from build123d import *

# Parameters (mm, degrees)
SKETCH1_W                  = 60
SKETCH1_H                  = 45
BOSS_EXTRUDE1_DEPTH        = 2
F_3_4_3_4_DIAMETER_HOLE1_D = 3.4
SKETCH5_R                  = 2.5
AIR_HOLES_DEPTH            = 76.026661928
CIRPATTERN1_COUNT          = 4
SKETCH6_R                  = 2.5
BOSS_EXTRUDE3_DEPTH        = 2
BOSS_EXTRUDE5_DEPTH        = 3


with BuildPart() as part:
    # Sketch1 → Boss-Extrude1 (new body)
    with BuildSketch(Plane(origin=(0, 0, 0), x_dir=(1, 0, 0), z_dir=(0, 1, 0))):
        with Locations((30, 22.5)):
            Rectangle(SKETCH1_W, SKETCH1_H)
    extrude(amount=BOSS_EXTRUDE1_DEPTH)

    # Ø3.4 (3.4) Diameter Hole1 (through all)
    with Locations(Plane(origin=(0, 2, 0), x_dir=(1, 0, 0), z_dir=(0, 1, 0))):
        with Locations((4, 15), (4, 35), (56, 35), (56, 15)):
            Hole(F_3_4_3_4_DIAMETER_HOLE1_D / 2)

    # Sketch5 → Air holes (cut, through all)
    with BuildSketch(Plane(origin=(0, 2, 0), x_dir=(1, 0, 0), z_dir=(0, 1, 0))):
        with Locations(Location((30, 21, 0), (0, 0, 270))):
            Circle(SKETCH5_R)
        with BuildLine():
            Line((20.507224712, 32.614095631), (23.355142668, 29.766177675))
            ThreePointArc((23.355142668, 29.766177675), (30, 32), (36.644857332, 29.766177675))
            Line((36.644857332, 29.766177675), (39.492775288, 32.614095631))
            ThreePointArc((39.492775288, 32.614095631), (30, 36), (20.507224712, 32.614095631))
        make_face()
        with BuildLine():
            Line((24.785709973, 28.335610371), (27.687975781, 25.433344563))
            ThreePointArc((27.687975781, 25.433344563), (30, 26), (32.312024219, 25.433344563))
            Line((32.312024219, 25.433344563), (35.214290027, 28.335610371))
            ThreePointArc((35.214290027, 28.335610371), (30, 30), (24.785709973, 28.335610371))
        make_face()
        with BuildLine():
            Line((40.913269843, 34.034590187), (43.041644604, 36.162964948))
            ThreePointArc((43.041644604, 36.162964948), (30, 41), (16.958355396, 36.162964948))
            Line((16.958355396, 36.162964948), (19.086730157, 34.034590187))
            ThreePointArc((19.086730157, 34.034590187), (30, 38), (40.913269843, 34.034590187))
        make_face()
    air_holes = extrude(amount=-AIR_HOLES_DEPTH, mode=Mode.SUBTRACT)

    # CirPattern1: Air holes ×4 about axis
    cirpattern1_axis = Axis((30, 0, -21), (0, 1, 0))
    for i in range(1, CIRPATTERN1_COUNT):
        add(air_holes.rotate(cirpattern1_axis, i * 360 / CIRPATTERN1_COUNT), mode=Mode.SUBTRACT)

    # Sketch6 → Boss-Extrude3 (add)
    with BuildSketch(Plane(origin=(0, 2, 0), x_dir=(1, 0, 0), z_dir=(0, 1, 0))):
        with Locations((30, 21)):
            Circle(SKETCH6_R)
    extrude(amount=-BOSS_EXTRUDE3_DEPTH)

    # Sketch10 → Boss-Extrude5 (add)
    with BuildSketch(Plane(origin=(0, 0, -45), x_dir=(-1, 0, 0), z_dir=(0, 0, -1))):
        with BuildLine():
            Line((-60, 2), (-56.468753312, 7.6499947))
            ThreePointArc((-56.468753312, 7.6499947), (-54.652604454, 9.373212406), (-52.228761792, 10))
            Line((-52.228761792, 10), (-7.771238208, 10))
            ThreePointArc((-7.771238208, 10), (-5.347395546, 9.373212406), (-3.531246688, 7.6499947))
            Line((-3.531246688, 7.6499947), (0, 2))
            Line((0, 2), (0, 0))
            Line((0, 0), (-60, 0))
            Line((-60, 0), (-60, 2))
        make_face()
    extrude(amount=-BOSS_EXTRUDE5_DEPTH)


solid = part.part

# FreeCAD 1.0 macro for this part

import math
import FreeCAD as App
import Part
import Sketcher
from FreeCAD import Vector
Q = App.Units.Quantity

doc = App.newDocument("Part")
body = doc.addObject("PartDesign::Body", "Body")

sketch1 = doc.addObject("Sketcher::SketchObject", "Sketch")
body.addObject(sketch1)
sketch1.AttachmentSupport = (doc.XZ_Plane, [""])
sketch1.MapMode = "FlatFace"
sketch1.addGeometry([
    Part.LineSegment(Vector(0, -45, 0), Vector(0, 0, 0)),
    Part.LineSegment(Vector(0, 0, 0), Vector(60, 0, 0)),
    Part.LineSegment(Vector(60, 0, 0), Vector(60, -45, 0)),
    Part.LineSegment(Vector(60, -45, 0), Vector(0, -45, 0)),
], False)
sketch1.addConstraint([
    Sketcher.Constraint("Coincident", 0, 2, 1, 1),
    Sketcher.Constraint("Coincident", 1, 2, 2, 1),
    Sketcher.Constraint("Coincident", 2, 2, 3, 1),
    Sketcher.Constraint("Coincident", 3, 2, 0, 1),
    Sketcher.Constraint("Vertical", 0),
    Sketcher.Constraint("Horizontal", 1),
    Sketcher.Constraint("Vertical", 2),
    Sketcher.Constraint("Horizontal", 3),
    Sketcher.Constraint("Coincident", 0, 2, -1, 1),
    Sketcher.Constraint("DistanceX", 1, 1, 1, 2, Q("60 mm")),
    Sketcher.Constraint("DistanceY", 0, 1, 0, 2, Q("45 mm")),
])
pad1 = doc.addObject("PartDesign::Pad", "Pad")
body.addObject(pad1)
pad1.Profile = sketch1
pad1.Length = 2
pad1.Reversed = True

sketch2 = doc.addObject("Sketcher::SketchObject", "Sketch001")
body.addObject(sketch2)
sketch2.AttachmentSupport = (doc.XZ_Plane, [""])
sketch2.MapMode = "FlatFace"
sketch2.AttachmentOffset = App.Placement(Vector(0, 0, -2), App.Rotation())
sketch2.addGeometry([
    Part.Circle(Vector(4, -15, 0), Vector(0, 0, 1), 1.7),
    Part.Circle(Vector(4, -35, 0), Vector(0, 0, 1), 1.7),
    Part.Circle(Vector(56, -35, 0), Vector(0, 0, 1), 1.7),
    Part.Circle(Vector(56, -15, 0), Vector(0, 0, 1), 1.7),
], False)
sketch2.addConstraint([
    Sketcher.Constraint("Equal", 0, 1),
    Sketcher.Constraint("Equal", 1, 2),
    Sketcher.Constraint("Equal", 2, 3),
    Sketcher.Constraint("Horizontal", 1, 3, 2, 3),
    Sketcher.Constraint("Horizontal", 0, 3, 3, 3),
    Sketcher.Constraint("Vertical", 0, 3, 1, 3),
    Sketcher.Constraint("Vertical", 2, 3, 3, 3),
    Sketcher.Constraint("Diameter", 0, Q("3.4 mm")),
    Sketcher.Constraint("DistanceX", -1, 1, 0, 3, Q("4 mm")),
    Sketcher.Constraint("DistanceY", 0, 3, -1, 1, Q("15 mm")),
    Sketcher.Constraint("DistanceY", 1, 3, -1, 1, Q("35 mm")),
    Sketcher.Constraint("DistanceX", -1, 1, 2, 3, Q("56 mm")),
])
doc.recompute()
hole = doc.addObject("PartDesign::Hole", "Hole")
body.addObject(hole)
hole.Profile = sketch2
hole.ThreadType = "None"
hole.Diameter = 3.4
hole.DepthType = "ThroughAll"
hole.Reversed = True

sketch3 = doc.addObject("Sketcher::SketchObject", "Sketch002")
body.addObject(sketch3)
sketch3.AttachmentSupport = (doc.XZ_Plane, [""])
sketch3.MapMode = "FlatFace"
sketch3.AttachmentOffset = App.Placement(Vector(0, 0, -2), App.Rotation())
sketch3.addGeometry([
    Part.Circle(Vector(30, -21, 0), Vector(0, 0, 1), 2.5),
    Part.LineSegment(Vector(20.5, -32.6, 0), Vector(23.4, -29.8, 0)),
    Part.ArcOfCircle(Part.Circle(Vector(30, -21, 0), Vector(0, 0, 1), 11), math.radians(-127), math.radians(-53)),
    Part.LineSegment(Vector(36.6, -29.8, 0), Vector(39.5, -32.6, 0)),
    Part.ArcOfCircle(Part.Circle(Vector(30, -21, 0), Vector(0, 0, 1), 15), math.radians(-129), math.radians(-51)),
    Part.LineSegment(Vector(24.8, -28.3, 0), Vector(27.7, -25.4, 0)),
    Part.ArcOfCircle(Part.Circle(Vector(30, -21, 0), Vector(0, 0, 1), 5), math.radians(-118), math.radians(-62)),
    Part.LineSegment(Vector(32.3, -25.4, 0), Vector(35.2, -28.3, 0)),
    Part.ArcOfCircle(Part.Circle(Vector(30, -21, 0), Vector(0, 0, 1), 9), math.radians(-125), math.radians(-55)),
    Part.LineSegment(Vector(40.9, -34, 0), Vector(43, -36.2, 0)),
    Part.ArcOfCircle(Part.Circle(Vector(30, -21, 0), Vector(0, 0, 1), 20), math.radians(-131), math.radians(-49)),
    Part.LineSegment(Vector(17, -36.2, 0), Vector(19.1, -34, 0)),
    Part.ArcOfCircle(Part.Circle(Vector(30, -21, 0), Vector(0, 0, 1), 17), math.radians(-130), math.radians(-50)),
], False)
sketch3.addConstraint([
    Sketcher.Constraint("Coincident", 1, 2, 2, 1),
    Sketcher.Constraint("Coincident", 2, 2, 3, 1),
    Sketcher.Constraint("Coincident", 3, 2, 4, 2),
    Sketcher.Constraint("Coincident", 4, 1, 1, 1),
    Sketcher.Constraint("Coincident", 5, 2, 6, 1),
    Sketcher.Constraint("Coincident", 6, 2, 7, 1),
    Sketcher.Constraint("Coincident", 7, 2, 8, 2),
    Sketcher.Constraint("Coincident", 8, 1, 5, 1),
    Sketcher.Constraint("Coincident", 9, 2, 10, 2),
    Sketcher.Constraint("Coincident", 10, 1, 11, 1),
    Sketcher.Constraint("Coincident", 11, 2, 12, 1),
    Sketcher.Constraint("Coincident", 12, 2, 9, 1),
    Sketcher.Constraint("Coincident", 2, 3, 0, 3),
    Sketcher.Constraint("Coincident", 4, 3, 0, 3),
    Sketcher.Constraint("Coincident", 6, 3, 0, 3),
    Sketcher.Constraint("Coincident", 8, 3, 0, 3),
    Sketcher.Constraint("Coincident", 10, 3, 0, 3),
    Sketcher.Constraint("Coincident", 12, 3, 0, 3),
    Sketcher.Constraint("Perpendicular", 1, 3),
    Sketcher.Constraint("Perpendicular", 3, 5),
    Sketcher.Constraint("Perpendicular", 5, 7),
    Sketcher.Constraint("Parallel", 7, 9),
    Sketcher.Constraint("Perpendicular", 9, 11),
    Sketcher.Constraint("Horizontal", 1, 2, 2, 2),
    Sketcher.Constraint("Horizontal", 3, 2, 4, 1),
    Sketcher.Constraint("Horizontal", 5, 2, 6, 2),
    Sketcher.Constraint("Horizontal", 9, 2, 10, 1),
    Sketcher.Constraint("Diameter", 0, Q("5 mm")),
    Sketcher.Constraint("Radius", 2, Q("11 mm")),
    Sketcher.Constraint("Radius", 4, Q("15 mm")),
    Sketcher.Constraint("Radius", 6, Q("5 mm")),
    Sketcher.Constraint("Radius", 8, Q("9 mm")),
    Sketcher.Constraint("Radius", 10, Q("20 mm")),
    Sketcher.Constraint("Radius", 12, Q("17 mm")),
    Sketcher.Constraint("DistanceX", -1, 1, 0, 3, Q("30 mm")),
    Sketcher.Constraint("DistanceY", 0, 3, -1, 1, Q("21 mm")),
    Sketcher.Constraint("DistanceX", -1, 1, 7, 2, Q("35.21429 mm")),
    Sketcher.Constraint("DistanceX", -1, 1, 11, 2, Q("19.08673 mm")),
    Sketcher.Constraint("DistanceX", 3, 2, 9, 2, Q("3.548869 mm")),
])
pocket1 = doc.addObject("PartDesign::Pocket", "Pocket")
body.addObject(pocket1)
pocket1.Profile = sketch3
pocket1.Type = "ThroughAll"
pocket1.Reversed = True
doc.recompute()

datumline = doc.addObject("PartDesign::Line", "DatumLine")
body.addObject(datumline)
datumline.Placement = App.Placement(Vector(30, 0, -21), App.Rotation(Vector(0, 0, 1), Vector(0, 1, 0)))
polarpattern = doc.addObject("PartDesign::PolarPattern", "PolarPattern")
body.addObject(polarpattern)
polarpattern.Originals = [pocket1]
polarpattern.Axis = (datumline, [""])
polarpattern.Angle = 360
polarpattern.Occurrences = 4
body.Tip = polarpattern

sketch4 = doc.addObject("Sketcher::SketchObject", "Sketch003")
body.addObject(sketch4)
sketch4.AttachmentSupport = (doc.XZ_Plane, [""])
sketch4.MapMode = "FlatFace"
sketch4.AttachmentOffset = App.Placement(Vector(0, 0, -2), App.Rotation())
sketch4.addGeometry(Part.Circle(Vector(30, -21, 0), Vector(0, 0, 1), 2.5), False)
sketch4.addConstraint([
    Sketcher.Constraint("Diameter", 0, Q("5 mm")),
    Sketcher.Constraint("DistanceX", -1, 1, 0, 3, Q("30 mm")),
    Sketcher.Constraint("DistanceY", 0, 3, -1, 1, Q("21 mm")),
])
pad2 = doc.addObject("PartDesign::Pad", "Pad001")
body.addObject(pad2)
pad2.Profile = sketch4
pad2.Length = 2

sketch5 = doc.addObject("Sketcher::SketchObject", "Sketch004")
body.addObject(sketch5)
sketch5.AttachmentSupport = (doc.XY_Plane, [""])
sketch5.MapMode = "FlatFace"
sketch5.AttachmentOffset = App.Placement(Vector(0, 0, -45), App.Rotation())
sketch5.addGeometry([
    Part.LineSegment(Vector(56.5, 7.6, 0), Vector(60, 2, 0)),
    Part.LineSegment(Vector(60, 2, 0), Vector(60, 0, 0)),
    Part.LineSegment(Vector(60, 0, 0), Vector(0, 0, 0)),
    Part.LineSegment(Vector(0, 0, 0), Vector(0, 2, 0)),
    Part.LineSegment(Vector(0, 2, 0), Vector(3.5, 7.6, 0)),
    Part.ArcOfCircle(Part.Circle(Vector(7.8, 5, 0), Vector(0, 0, 1), 5), math.radians(90), math.radians(148)),
    Part.LineSegment(Vector(7.8, 10, 0), Vector(52.2, 10, 0)),
    Part.ArcOfCircle(Part.Circle(Vector(52.2, 5, 0), Vector(0, 0, 1), 5), math.radians(32), math.radians(90)),
], False)
sketch5.addConstraint([
    Sketcher.Constraint("Coincident", 0, 2, 1, 1),
    Sketcher.Constraint("Coincident", 1, 2, 2, 1),
    Sketcher.Constraint("Coincident", 2, 2, 3, 1),
    Sketcher.Constraint("Coincident", 3, 2, 4, 1),
    Sketcher.Constraint("Tangent", 4, 2, 5, 2),
    Sketcher.Constraint("Tangent", 5, 1, 6, 1),
    Sketcher.Constraint("Tangent", 6, 2, 7, 2),
    Sketcher.Constraint("Tangent", 7, 1, 0, 1),
    Sketcher.Constraint("Vertical", 1),
    Sketcher.Constraint("Horizontal", 2),
    Sketcher.Constraint("Vertical", 3),
    Sketcher.Constraint("Horizontal", 6),
    Sketcher.Constraint("Coincident", 2, 2, -1, 1),
    Sketcher.Constraint("Equal", 5, 7),
    Sketcher.Constraint("Horizontal", 0, 2, 3, 2),
    Sketcher.Constraint("Horizontal", 4, 2, 7, 1),
    Sketcher.Constraint("Radius", 5, Q("5 mm")),
    Sketcher.Constraint("DistanceX", 2, 2, 2, 1, Q("60 mm")),
    Sketcher.Constraint("DistanceY", 1, 2, 1, 1, Q("2 mm")),
    Sketcher.Constraint("DistanceY", -1, 1, 5, 3, Q("5 mm")),
    Sketcher.Constraint("DistanceX", 6, 1, 6, 2, Q("44.457524 mm")),
])
pad3 = doc.addObject("PartDesign::Pad", "Pad002")
body.addObject(pad3)
pad3.Profile = sketch5
pad3.Length = 3

doc.recompute()
